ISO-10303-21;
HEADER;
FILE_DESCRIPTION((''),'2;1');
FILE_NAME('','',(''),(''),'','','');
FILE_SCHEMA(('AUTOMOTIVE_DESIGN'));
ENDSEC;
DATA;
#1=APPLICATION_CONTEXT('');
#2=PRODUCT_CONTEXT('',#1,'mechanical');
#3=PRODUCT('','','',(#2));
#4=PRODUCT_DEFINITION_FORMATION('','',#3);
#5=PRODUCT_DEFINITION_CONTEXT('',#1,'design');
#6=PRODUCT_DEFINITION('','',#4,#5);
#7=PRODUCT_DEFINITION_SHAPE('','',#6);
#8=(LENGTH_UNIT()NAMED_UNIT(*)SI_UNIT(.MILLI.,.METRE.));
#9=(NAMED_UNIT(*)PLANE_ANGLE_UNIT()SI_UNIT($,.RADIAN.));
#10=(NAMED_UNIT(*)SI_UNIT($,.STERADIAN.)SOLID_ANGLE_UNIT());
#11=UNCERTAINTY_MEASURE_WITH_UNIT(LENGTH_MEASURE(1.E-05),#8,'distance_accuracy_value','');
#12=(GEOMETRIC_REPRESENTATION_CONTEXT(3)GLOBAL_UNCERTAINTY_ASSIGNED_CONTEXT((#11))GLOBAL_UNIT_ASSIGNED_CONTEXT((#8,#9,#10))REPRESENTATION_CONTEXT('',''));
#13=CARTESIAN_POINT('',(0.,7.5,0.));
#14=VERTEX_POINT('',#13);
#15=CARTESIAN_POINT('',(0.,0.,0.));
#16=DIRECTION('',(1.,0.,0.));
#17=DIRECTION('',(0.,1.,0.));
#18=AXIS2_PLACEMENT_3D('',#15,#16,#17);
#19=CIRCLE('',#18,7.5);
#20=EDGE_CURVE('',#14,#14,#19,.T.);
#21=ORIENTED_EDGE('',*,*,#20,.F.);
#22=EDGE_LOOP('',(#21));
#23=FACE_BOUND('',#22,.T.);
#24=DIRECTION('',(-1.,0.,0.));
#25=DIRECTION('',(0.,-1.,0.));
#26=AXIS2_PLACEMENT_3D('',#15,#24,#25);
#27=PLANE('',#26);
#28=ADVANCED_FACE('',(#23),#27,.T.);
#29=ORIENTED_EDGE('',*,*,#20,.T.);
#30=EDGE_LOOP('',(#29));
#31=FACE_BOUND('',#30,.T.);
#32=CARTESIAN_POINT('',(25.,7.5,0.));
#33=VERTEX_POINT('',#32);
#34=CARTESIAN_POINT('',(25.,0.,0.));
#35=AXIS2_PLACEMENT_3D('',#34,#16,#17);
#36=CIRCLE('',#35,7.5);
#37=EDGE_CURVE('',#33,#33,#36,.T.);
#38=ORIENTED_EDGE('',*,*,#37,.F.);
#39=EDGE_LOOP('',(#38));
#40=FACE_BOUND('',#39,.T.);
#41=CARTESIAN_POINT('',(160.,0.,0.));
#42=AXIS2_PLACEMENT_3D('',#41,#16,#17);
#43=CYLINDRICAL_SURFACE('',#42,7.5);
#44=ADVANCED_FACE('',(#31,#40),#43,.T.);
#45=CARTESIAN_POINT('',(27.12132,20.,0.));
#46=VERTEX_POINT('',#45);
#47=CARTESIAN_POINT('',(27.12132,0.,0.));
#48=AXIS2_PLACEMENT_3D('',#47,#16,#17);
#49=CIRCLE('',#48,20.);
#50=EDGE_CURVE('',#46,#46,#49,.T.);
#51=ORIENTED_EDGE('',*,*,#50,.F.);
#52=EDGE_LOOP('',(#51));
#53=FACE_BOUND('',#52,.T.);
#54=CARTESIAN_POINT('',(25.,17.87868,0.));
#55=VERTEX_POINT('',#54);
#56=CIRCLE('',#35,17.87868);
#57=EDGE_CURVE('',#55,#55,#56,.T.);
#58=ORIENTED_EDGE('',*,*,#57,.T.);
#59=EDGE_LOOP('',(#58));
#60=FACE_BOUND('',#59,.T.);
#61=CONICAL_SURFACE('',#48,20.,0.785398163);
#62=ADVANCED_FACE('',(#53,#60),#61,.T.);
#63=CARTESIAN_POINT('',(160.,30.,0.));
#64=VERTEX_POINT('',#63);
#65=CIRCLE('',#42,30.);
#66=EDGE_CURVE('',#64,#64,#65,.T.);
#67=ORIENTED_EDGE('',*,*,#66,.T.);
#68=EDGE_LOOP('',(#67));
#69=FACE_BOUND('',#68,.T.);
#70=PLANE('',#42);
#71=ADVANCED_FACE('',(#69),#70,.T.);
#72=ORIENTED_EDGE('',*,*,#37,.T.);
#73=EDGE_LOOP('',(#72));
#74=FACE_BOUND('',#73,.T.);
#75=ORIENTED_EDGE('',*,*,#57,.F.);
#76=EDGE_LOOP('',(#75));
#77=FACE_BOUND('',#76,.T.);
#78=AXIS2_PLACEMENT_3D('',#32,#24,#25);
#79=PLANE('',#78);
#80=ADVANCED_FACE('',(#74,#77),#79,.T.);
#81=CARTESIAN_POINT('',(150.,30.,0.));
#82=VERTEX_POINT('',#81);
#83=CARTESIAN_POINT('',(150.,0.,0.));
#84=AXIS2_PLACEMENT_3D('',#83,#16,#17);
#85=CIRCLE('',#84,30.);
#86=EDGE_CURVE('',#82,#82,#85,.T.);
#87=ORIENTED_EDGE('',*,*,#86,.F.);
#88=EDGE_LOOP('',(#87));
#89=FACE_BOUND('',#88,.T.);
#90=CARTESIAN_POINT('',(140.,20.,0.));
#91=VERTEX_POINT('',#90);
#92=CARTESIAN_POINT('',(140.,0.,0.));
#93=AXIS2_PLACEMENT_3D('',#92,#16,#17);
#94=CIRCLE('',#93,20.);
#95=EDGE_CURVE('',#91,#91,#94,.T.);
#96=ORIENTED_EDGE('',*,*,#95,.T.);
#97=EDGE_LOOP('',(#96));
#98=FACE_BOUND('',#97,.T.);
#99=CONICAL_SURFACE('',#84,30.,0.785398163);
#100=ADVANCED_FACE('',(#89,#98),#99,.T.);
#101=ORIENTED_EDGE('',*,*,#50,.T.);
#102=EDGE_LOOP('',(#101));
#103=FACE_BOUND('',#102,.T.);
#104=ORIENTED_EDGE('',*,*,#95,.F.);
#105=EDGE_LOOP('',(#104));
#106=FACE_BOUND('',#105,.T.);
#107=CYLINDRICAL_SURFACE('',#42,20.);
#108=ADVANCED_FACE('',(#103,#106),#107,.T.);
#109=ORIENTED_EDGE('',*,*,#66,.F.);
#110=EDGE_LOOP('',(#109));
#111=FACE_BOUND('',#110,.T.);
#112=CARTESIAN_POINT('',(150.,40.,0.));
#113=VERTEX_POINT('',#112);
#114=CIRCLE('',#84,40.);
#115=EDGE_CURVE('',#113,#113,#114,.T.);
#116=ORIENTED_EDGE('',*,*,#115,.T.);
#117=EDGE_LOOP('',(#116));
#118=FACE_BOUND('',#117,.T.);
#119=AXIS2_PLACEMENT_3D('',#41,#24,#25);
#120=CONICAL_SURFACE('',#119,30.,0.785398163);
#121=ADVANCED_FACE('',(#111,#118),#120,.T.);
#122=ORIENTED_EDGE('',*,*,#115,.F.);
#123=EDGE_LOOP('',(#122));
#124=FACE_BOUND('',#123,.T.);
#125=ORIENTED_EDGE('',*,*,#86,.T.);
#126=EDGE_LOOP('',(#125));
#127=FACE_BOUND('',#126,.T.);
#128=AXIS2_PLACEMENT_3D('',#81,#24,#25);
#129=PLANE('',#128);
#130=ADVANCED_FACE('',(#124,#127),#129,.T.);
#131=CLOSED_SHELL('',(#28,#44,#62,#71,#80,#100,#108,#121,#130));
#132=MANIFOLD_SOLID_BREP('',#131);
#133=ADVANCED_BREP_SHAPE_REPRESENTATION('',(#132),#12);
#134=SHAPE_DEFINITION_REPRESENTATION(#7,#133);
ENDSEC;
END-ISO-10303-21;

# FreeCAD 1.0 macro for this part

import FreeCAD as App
import Part
import Sketcher

V = App.Vector
Q = App.Units.Quantity

doc = App.newDocument("Part")
body = doc.addObject("PartDesign::Body", "Body")

# Sketch on XY plane
sketch1 = body.newObject("Sketcher::SketchObject", "Sketch")
sketch1.AttachmentSupport = (doc.getObject("XY_Plane"), [""])
sketch1.MapMode = "FlatFace"
sketch1.addGeometry([
    Part.LineSegment(V(0, 7.5, 0), V(0, 0, 0)),  # 0
    Part.LineSegment(V(0, 0, 0), V(160, 0, 0)),  # 1
    Part.LineSegment(V(160, 0, 0), V(160, 30, 0)),  # 2
    Part.LineSegment(V(160, 30, 0), V(150, 40, 0)),  # 3
    Part.LineSegment(V(150, 40, 0), V(150, 30, 0)),  # 4
    Part.LineSegment(V(150, 30, 0), V(140, 20, 0)),  # 5
    Part.LineSegment(V(140, 20, 0), V(27.12132, 20, 0)),  # 6
    Part.LineSegment(V(27.12132, 20, 0), V(25, 17.87868, 0)),  # 7
    Part.LineSegment(V(25, 17.87868, 0), V(25, 7.5, 0)),  # 8
    Part.LineSegment(V(25, 7.5, 0), V(0, 7.5, 0)),  # 9
], False)
sketch1.addConstraint([
    Sketcher.Constraint("Coincident", 0, 2, 1, 1),
    Sketcher.Constraint("Coincident", 1, 2, 2, 1),
    Sketcher.Constraint("Coincident", 2, 2, 3, 1),
    Sketcher.Constraint("Coincident", 3, 2, 4, 1),
    Sketcher.Constraint("Coincident", 4, 2, 5, 1),
    Sketcher.Constraint("Coincident", 5, 2, 6, 1),
    Sketcher.Constraint("Coincident", 6, 2, 7, 1),
    Sketcher.Constraint("Coincident", 7, 2, 8, 1),
    Sketcher.Constraint("Coincident", 8, 2, 9, 1),
    Sketcher.Constraint("Coincident", 9, 2, 0, 1),
    Sketcher.Constraint("Vertical", 0),
    Sketcher.Constraint("Horizontal", 1),
    Sketcher.Constraint("Vertical", 2),
    Sketcher.Constraint("Vertical", 4),
    Sketcher.Constraint("Horizontal", 6),
    Sketcher.Constraint("Vertical", 8),
    Sketcher.Constraint("Horizontal", 9),
    Sketcher.Constraint("Coincident", 0, 2, -1, 1),
    Sketcher.Constraint("Perpendicular", 3, 5),
    Sketcher.Constraint("Parallel", 5, 7),
    Sketcher.Constraint("Horizontal", 2, 2, 4, 2),
    Sketcher.Constraint("Equal", 3, 5),
    Sketcher.Constraint("DistanceX", 1, 1, 1, 2, Q("160 mm")),
    Sketcher.Constraint("DistanceX", 9, 2, 9, 1, Q("25 mm")),
    Sketcher.Constraint("DistanceY", 2, 1, 2, 2, Q("30 mm")),
    Sketcher.Constraint("DistanceY", 4, 2, 4, 1, Q("10 mm")),
    Sketcher.Constraint("Angle", 3, Q("135 deg")),
    Sketcher.Constraint("Distance", 7, Q("3 mm")),
    Sketcher.Constraint("DistanceY", 0, 2, 0, 1, Q("7.5 mm")),
])
revolution = body.newObject("PartDesign::Revolution", "Revolution")
revolution.Profile = sketch1
revolution.ReferenceAxis = (sketch1, ["H_Axis"])
revolution.Angle = 360

doc.recompute()
